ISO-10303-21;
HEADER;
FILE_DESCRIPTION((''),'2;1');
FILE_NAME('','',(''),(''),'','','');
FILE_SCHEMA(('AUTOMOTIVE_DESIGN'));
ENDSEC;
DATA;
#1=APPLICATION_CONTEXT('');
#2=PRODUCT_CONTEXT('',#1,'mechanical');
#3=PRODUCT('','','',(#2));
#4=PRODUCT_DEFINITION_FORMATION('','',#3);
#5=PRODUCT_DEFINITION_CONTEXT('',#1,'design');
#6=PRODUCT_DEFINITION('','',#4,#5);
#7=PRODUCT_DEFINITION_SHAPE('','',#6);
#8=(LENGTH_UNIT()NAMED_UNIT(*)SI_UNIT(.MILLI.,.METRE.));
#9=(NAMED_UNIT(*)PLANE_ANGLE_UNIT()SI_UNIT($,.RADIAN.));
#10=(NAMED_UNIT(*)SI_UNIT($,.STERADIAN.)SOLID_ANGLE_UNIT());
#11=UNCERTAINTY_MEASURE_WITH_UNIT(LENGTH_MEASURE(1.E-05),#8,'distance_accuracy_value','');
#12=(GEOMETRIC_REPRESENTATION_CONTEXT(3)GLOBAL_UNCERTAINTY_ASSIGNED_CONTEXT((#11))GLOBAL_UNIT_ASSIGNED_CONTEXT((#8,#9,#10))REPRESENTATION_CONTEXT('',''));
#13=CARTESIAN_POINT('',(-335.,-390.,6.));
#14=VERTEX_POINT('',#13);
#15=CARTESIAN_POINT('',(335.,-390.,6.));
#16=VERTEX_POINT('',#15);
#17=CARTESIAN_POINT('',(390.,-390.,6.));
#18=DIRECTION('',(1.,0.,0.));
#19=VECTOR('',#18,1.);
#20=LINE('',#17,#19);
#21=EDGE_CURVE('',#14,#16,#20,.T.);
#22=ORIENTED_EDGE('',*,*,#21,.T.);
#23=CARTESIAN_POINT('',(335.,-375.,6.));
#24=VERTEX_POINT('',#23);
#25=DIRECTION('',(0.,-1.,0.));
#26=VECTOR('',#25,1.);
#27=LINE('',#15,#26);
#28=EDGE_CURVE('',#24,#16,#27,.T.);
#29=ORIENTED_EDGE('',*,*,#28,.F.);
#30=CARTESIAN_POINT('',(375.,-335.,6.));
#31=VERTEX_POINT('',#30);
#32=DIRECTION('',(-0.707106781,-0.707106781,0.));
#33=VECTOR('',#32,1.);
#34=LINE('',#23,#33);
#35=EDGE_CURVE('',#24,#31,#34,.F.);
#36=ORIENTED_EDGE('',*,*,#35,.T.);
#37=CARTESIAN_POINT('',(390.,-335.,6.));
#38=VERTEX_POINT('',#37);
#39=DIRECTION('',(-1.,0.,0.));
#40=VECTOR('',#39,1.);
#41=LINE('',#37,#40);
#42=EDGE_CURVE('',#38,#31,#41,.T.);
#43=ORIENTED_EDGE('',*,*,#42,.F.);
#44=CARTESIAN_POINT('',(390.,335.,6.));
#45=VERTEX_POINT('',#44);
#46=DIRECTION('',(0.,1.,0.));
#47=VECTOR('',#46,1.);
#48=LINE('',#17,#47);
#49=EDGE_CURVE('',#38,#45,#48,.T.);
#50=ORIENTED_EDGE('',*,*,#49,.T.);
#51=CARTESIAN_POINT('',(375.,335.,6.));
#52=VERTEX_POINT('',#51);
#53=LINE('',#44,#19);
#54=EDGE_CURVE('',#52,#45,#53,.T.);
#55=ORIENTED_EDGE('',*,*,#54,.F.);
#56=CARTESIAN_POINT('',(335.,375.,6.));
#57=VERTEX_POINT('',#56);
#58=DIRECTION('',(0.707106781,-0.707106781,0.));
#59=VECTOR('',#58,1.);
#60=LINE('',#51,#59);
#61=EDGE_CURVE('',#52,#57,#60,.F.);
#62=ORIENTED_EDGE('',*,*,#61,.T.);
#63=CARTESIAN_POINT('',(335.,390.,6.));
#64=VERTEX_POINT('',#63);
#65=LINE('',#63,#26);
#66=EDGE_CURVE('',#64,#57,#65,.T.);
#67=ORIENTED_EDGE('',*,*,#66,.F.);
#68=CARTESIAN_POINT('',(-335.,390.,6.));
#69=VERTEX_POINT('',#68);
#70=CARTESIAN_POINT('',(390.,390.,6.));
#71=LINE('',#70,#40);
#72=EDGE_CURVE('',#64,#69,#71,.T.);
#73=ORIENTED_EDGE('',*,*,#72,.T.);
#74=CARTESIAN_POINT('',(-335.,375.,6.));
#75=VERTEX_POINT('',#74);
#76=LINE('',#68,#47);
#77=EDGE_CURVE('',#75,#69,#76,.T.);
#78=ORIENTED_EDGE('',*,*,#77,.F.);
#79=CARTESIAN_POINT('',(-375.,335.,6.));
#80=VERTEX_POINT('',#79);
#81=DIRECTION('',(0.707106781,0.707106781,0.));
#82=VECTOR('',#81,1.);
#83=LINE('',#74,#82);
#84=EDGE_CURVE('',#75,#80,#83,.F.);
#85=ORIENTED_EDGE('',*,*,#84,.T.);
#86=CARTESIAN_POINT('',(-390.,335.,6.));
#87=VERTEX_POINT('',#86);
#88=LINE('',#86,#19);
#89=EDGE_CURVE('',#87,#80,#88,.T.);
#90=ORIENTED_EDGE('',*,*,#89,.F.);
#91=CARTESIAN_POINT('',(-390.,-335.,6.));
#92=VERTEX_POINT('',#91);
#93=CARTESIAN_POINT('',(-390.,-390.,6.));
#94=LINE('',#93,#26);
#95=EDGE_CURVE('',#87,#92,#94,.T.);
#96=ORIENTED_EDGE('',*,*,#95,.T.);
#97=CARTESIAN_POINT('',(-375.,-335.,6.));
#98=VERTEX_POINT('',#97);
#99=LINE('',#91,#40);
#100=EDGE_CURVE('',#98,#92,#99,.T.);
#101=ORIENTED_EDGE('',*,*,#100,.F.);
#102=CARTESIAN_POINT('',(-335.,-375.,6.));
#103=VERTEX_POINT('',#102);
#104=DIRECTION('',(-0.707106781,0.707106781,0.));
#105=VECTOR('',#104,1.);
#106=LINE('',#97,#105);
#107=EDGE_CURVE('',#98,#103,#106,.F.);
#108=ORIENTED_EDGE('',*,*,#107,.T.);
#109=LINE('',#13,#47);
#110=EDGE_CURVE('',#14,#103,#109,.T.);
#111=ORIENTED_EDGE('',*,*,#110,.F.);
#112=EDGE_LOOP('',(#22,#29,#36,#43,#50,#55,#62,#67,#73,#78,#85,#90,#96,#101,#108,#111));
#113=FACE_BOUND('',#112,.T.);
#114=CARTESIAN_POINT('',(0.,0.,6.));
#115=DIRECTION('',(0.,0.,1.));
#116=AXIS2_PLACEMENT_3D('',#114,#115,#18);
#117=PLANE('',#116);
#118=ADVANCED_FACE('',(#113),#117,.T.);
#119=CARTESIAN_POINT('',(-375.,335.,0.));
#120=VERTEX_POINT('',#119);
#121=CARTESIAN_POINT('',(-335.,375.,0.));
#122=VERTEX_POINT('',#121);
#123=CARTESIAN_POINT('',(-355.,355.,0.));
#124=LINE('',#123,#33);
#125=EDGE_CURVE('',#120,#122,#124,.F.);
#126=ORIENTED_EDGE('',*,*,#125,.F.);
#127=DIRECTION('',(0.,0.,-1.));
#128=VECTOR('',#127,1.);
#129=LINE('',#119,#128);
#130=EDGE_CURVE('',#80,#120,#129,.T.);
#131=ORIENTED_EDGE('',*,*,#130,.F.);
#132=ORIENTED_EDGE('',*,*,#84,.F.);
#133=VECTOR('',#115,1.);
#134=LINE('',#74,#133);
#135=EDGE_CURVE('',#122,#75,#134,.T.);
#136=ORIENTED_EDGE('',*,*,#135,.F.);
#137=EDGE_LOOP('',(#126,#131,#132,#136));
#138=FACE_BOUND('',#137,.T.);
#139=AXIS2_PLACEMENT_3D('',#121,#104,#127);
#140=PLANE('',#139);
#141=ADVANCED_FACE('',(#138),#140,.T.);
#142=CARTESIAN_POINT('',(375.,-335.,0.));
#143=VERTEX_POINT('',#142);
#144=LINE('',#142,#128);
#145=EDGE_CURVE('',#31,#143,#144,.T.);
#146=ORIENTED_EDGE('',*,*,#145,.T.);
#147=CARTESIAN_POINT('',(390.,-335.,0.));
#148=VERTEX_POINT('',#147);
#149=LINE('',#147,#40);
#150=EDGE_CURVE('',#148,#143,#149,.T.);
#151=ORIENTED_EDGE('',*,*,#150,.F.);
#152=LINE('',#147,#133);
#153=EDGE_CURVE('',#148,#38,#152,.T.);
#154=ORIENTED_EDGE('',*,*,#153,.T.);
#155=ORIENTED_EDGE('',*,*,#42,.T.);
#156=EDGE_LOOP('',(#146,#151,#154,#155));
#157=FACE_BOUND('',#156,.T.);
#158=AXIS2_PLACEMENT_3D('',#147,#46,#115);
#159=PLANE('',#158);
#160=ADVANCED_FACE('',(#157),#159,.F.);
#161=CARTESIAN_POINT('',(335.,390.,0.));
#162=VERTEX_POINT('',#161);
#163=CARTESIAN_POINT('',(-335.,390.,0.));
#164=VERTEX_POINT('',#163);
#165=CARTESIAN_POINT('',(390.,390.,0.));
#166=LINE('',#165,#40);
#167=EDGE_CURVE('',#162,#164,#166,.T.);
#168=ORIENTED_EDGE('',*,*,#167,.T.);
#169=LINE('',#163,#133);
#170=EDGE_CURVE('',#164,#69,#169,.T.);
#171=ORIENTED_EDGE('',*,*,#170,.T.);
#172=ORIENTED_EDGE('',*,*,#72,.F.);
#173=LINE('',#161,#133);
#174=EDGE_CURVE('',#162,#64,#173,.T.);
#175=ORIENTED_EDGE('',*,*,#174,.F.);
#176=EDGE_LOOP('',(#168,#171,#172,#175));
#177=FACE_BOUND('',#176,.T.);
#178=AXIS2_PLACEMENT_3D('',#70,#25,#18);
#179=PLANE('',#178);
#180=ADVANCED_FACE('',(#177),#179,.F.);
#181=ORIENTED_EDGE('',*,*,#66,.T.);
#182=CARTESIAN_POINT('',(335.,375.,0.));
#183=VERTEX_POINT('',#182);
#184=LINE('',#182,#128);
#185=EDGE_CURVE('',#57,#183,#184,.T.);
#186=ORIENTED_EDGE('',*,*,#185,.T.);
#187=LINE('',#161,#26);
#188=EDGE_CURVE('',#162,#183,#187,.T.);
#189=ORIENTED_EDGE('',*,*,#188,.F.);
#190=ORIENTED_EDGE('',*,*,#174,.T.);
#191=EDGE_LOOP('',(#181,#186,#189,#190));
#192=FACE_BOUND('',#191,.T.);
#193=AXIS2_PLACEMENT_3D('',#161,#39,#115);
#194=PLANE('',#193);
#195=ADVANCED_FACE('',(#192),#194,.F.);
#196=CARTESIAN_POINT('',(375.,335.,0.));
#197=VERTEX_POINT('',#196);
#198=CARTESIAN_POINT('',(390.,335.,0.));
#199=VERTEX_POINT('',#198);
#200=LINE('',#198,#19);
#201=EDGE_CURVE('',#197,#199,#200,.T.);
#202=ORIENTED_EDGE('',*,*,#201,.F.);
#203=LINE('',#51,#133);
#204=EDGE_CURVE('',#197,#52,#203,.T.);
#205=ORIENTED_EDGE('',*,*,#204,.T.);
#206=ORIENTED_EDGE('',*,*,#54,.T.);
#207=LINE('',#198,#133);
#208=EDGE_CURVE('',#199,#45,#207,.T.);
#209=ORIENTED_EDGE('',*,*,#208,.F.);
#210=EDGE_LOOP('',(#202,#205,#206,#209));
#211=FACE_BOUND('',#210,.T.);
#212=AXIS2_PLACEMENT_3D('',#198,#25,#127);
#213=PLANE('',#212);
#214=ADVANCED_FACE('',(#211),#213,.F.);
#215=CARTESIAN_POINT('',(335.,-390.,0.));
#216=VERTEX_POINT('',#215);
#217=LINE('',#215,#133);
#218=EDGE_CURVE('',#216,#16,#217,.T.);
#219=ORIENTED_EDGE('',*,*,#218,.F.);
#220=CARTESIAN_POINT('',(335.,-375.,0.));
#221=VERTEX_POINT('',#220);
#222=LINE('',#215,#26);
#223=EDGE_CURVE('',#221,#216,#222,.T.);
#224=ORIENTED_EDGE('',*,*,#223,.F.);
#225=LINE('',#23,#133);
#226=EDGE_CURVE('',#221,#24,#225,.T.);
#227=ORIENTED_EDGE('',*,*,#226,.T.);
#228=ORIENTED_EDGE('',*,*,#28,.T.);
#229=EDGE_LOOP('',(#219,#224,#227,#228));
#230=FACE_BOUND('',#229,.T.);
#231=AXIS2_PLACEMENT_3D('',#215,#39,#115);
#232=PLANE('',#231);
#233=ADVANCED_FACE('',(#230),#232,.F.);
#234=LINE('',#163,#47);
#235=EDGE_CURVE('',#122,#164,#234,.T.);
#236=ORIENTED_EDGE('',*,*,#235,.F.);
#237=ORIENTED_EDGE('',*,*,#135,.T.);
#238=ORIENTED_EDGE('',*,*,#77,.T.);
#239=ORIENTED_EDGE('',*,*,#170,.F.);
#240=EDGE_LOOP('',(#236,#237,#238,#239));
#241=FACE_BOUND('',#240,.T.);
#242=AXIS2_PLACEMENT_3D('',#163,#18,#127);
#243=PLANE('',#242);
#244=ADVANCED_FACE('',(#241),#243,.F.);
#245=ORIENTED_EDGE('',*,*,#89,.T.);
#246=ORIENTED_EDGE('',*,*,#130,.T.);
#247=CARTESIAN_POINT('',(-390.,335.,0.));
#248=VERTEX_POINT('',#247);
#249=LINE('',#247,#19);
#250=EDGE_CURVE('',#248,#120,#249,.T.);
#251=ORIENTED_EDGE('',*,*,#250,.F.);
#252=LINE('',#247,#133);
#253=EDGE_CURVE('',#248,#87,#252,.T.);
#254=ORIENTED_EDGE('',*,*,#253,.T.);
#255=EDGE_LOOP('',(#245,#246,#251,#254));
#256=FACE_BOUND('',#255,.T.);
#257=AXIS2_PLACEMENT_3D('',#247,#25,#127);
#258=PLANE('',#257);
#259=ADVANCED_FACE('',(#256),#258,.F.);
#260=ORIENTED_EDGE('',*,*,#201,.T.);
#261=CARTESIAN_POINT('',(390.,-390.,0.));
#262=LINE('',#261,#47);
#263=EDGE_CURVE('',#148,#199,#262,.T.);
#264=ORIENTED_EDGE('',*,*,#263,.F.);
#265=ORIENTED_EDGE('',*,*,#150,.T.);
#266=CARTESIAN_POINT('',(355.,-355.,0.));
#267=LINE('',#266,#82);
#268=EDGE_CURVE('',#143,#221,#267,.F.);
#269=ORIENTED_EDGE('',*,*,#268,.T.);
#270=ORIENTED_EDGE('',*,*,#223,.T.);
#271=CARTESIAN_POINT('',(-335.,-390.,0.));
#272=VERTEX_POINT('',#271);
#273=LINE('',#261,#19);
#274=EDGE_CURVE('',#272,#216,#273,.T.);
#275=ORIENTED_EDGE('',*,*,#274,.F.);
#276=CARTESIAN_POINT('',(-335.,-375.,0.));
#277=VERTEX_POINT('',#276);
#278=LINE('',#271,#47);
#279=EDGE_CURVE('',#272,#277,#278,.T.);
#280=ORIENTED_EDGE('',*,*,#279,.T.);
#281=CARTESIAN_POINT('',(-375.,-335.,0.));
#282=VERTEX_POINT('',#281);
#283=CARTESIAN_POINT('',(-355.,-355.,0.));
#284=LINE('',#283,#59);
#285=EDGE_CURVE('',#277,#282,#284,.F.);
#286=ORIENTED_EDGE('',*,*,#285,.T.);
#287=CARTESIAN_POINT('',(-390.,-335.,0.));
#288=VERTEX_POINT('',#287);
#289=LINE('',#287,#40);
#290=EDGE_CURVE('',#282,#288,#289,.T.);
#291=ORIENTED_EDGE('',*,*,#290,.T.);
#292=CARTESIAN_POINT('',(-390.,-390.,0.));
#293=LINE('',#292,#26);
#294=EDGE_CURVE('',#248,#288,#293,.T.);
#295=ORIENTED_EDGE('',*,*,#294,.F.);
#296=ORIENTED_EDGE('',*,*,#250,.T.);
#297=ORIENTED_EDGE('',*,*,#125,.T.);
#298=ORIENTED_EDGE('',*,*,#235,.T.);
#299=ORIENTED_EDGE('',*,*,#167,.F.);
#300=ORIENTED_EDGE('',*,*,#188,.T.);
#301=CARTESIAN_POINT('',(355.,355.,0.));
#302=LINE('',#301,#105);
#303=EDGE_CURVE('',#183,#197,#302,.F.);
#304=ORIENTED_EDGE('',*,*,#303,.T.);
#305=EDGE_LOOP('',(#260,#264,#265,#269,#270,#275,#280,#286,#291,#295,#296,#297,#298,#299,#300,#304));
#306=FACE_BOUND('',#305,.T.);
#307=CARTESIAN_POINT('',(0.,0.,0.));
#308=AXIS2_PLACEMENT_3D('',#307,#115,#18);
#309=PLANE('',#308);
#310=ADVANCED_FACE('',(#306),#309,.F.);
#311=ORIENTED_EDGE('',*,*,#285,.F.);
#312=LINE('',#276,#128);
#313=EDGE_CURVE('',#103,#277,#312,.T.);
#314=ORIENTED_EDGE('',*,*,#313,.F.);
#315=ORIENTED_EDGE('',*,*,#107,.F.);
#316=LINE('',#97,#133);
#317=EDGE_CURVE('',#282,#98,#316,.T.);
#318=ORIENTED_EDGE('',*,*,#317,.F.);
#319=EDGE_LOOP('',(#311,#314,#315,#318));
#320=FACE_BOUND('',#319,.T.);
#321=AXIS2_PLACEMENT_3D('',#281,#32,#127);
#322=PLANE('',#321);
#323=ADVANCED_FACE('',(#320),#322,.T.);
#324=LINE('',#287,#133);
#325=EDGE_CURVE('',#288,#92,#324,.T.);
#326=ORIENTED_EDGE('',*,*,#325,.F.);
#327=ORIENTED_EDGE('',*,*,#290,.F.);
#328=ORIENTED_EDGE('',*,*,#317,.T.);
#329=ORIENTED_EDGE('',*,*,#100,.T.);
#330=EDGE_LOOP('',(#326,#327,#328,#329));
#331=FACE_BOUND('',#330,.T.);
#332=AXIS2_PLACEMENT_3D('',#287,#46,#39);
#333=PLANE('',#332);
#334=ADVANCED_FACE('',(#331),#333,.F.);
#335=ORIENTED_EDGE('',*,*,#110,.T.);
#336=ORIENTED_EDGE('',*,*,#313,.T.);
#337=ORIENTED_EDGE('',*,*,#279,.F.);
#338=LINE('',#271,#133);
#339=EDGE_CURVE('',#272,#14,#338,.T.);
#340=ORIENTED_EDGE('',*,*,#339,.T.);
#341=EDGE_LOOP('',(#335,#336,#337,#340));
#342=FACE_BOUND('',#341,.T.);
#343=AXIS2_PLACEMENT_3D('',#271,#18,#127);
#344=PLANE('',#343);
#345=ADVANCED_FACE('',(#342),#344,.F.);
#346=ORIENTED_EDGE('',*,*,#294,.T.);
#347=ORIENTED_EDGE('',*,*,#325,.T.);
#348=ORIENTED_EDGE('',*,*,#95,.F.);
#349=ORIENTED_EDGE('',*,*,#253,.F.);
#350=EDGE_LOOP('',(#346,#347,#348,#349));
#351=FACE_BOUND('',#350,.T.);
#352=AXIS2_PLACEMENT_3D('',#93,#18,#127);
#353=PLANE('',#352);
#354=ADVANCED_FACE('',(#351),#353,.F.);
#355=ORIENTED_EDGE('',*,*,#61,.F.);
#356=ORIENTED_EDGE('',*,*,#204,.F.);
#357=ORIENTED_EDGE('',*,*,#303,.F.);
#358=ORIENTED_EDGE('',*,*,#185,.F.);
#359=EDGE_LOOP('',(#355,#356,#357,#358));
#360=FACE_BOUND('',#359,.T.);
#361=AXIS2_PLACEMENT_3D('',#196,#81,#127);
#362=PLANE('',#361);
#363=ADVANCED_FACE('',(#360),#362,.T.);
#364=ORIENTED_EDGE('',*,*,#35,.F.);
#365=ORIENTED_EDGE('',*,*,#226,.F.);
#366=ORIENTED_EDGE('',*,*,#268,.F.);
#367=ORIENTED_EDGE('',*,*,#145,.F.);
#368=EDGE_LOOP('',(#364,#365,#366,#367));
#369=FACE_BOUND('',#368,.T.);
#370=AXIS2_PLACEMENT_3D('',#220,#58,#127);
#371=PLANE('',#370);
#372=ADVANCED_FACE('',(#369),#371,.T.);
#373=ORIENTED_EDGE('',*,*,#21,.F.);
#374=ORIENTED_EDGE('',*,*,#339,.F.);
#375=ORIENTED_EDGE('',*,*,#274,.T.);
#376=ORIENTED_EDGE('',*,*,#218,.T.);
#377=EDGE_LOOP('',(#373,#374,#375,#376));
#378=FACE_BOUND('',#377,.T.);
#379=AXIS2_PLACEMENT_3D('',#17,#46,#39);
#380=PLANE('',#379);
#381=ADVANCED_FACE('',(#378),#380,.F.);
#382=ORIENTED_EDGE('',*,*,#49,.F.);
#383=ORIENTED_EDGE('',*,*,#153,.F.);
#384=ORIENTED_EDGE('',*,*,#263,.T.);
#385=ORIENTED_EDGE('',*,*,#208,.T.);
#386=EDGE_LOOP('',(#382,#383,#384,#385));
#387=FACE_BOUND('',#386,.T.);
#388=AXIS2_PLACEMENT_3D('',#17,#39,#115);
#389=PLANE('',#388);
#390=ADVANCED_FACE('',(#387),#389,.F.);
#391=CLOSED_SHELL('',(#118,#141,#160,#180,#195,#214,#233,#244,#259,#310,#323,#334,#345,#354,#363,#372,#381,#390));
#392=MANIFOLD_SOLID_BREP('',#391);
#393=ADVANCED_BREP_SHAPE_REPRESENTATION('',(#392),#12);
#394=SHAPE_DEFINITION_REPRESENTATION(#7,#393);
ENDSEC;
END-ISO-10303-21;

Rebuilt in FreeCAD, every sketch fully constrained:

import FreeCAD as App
import Part
import Sketcher
Q = App.Units.Quantity


def edges_at(feature, points):
    """Names of the edges that pass closest to the given points."""
    edges = feature.Shape.Edges
    near = lambda p: min(range(len(edges)), key=lambda i: edges[i].distToShape(Part.Vertex(*p))[0])
    return sorted({f"Edge{near(p) + 1}" for p in points})


def add_polygon(sketch, points):
    """Adds a closed chain of lines whose ends are joined by coincident constraints."""
    first, n = sketch.GeometryCount, len(points)
    for a, b in zip(points, points[1:] + points[:1]):
        sketch.addGeometry(Part.LineSegment(App.Vector(*a, 0), App.Vector(*b, 0)), False)
    for i in range(n):
        sketch.addConstraint(Sketcher.Constraint("Coincident", first + i, 2, first + (i + 1) % n, 1))

doc = App.newDocument("Part")
body = doc.addObject("PartDesign::Body", "Body")

# Sketch on XY plane
sketch1 = body.newObject("Sketcher::SketchObject", "Sketch")
sketch1.AttachmentSupport = (doc.getObject("XY_Plane"), [""])
sketch1.MapMode = "FlatFace"
add_polygon(sketch1, [(-390, 390), (-390, -390), (390, -390), (390, 390)])  # lines 0-3
sketch1.addConstraint([
    Sketcher.Constraint("Vertical", 0),
    Sketcher.Constraint("Horizontal", 1),
    Sketcher.Constraint("Vertical", 2),
    Sketcher.Constraint("Horizontal", 3),
    Sketcher.Constraint("Symmetric", 0, 2, 2, 2, -1, 1),
    Sketcher.Constraint("Equal", 3, 0),
    Sketcher.Constraint("DistanceX", 1, 1, 1, 2, Q("780 mm")),
])
pad1 = body.newObject("PartDesign::Pad", "Pad")
pad1.Profile = sketch1
pad1.Length = 6

# Sketch on XY plane
sketch2 = body.newObject("Sketcher::SketchObject", "Sketch001")
sketch2.AttachmentSupport = (doc.getObject("XY_Plane"), [""])
sketch2.MapMode = "FlatFace"
sketch2.AttachmentOffset = App.Placement(App.Vector(0, 0, 6), App.Rotation())
add_polygon(sketch2, [(-390, 390), (-390, 335), (-335, 335), (-335, 390)])  # lines 0-3
add_polygon(sketch2, [(335, 390), (335, 335), (390, 335), (390, 390)])  # lines 4-7
add_polygon(sketch2, [(335, -335), (335, -390), (390, -390), (390, -335)])  # lines 8-11
add_polygon(sketch2, [(-390, -335), (-390, -390), (-335, -390), (-335, -335)])  # lines 12-15
sketch2.addConstraint([
    Sketcher.Constraint("Vertical", 0),
    Sketcher.Constraint("Horizontal", 1),
    Sketcher.Constraint("Vertical", 2),
    Sketcher.Constraint("Horizontal", 3),
    Sketcher.Constraint("Vertical", 4),
    Sketcher.Constraint("Horizontal", 5),
    Sketcher.Constraint("Vertical", 6),
    Sketcher.Constraint("Horizontal", 7),
    Sketcher.Constraint("Vertical", 8),
    Sketcher.Constraint("Horizontal", 9),
    Sketcher.Constraint("Vertical", 10),
    Sketcher.Constraint("Horizontal", 11),
    Sketcher.Constraint("Vertical", 12),
    Sketcher.Constraint("Horizontal", 13),
    Sketcher.Constraint("Vertical", 14),
    Sketcher.Constraint("Horizontal", 15),
    Sketcher.Constraint("Symmetric", 2, 2, 8, 2, -1, 1),
    Sketcher.Constraint("Symmetric", 0, 2, 10, 2, -1, 1),
    Sketcher.Constraint("Symmetric", 6, 2, 12, 2, -1, 1),
    Sketcher.Constraint("Symmetric", 4, 2, 14, 2, -1, 1),
    Sketcher.Constraint("Symmetric", 1, 2, 4, 2, -2),
    Sketcher.Constraint("Symmetric", 3, 2, 6, 2, -2),
    Sketcher.Constraint("Equal", 15, 0),
    Sketcher.Constraint("DistanceX", 1, 1, 1, 2, Q("55 mm")),
    Sketcher.Constraint("DistanceX", 0, 2, -1, 1, Q("390 mm")),
    Sketcher.Constraint("DistanceY", -1, 1, 0, 2, Q("335 mm")),
])
pocket1 = body.newObject("PartDesign::Pocket", "Pocket")
pocket1.Profile = sketch2
pocket1.Length = 6
doc.recompute()

chamfer = body.newObject("PartDesign::Chamfer", "Chamfer")
chamfer.Base = (pocket1, edges_at(pocket1, [
    (-335, -335, 3),
    (335, -335, 3),
    (335, 335, 3),
    (-335, 335, 3),
]))
chamfer.Size = 40

doc.recompute()
